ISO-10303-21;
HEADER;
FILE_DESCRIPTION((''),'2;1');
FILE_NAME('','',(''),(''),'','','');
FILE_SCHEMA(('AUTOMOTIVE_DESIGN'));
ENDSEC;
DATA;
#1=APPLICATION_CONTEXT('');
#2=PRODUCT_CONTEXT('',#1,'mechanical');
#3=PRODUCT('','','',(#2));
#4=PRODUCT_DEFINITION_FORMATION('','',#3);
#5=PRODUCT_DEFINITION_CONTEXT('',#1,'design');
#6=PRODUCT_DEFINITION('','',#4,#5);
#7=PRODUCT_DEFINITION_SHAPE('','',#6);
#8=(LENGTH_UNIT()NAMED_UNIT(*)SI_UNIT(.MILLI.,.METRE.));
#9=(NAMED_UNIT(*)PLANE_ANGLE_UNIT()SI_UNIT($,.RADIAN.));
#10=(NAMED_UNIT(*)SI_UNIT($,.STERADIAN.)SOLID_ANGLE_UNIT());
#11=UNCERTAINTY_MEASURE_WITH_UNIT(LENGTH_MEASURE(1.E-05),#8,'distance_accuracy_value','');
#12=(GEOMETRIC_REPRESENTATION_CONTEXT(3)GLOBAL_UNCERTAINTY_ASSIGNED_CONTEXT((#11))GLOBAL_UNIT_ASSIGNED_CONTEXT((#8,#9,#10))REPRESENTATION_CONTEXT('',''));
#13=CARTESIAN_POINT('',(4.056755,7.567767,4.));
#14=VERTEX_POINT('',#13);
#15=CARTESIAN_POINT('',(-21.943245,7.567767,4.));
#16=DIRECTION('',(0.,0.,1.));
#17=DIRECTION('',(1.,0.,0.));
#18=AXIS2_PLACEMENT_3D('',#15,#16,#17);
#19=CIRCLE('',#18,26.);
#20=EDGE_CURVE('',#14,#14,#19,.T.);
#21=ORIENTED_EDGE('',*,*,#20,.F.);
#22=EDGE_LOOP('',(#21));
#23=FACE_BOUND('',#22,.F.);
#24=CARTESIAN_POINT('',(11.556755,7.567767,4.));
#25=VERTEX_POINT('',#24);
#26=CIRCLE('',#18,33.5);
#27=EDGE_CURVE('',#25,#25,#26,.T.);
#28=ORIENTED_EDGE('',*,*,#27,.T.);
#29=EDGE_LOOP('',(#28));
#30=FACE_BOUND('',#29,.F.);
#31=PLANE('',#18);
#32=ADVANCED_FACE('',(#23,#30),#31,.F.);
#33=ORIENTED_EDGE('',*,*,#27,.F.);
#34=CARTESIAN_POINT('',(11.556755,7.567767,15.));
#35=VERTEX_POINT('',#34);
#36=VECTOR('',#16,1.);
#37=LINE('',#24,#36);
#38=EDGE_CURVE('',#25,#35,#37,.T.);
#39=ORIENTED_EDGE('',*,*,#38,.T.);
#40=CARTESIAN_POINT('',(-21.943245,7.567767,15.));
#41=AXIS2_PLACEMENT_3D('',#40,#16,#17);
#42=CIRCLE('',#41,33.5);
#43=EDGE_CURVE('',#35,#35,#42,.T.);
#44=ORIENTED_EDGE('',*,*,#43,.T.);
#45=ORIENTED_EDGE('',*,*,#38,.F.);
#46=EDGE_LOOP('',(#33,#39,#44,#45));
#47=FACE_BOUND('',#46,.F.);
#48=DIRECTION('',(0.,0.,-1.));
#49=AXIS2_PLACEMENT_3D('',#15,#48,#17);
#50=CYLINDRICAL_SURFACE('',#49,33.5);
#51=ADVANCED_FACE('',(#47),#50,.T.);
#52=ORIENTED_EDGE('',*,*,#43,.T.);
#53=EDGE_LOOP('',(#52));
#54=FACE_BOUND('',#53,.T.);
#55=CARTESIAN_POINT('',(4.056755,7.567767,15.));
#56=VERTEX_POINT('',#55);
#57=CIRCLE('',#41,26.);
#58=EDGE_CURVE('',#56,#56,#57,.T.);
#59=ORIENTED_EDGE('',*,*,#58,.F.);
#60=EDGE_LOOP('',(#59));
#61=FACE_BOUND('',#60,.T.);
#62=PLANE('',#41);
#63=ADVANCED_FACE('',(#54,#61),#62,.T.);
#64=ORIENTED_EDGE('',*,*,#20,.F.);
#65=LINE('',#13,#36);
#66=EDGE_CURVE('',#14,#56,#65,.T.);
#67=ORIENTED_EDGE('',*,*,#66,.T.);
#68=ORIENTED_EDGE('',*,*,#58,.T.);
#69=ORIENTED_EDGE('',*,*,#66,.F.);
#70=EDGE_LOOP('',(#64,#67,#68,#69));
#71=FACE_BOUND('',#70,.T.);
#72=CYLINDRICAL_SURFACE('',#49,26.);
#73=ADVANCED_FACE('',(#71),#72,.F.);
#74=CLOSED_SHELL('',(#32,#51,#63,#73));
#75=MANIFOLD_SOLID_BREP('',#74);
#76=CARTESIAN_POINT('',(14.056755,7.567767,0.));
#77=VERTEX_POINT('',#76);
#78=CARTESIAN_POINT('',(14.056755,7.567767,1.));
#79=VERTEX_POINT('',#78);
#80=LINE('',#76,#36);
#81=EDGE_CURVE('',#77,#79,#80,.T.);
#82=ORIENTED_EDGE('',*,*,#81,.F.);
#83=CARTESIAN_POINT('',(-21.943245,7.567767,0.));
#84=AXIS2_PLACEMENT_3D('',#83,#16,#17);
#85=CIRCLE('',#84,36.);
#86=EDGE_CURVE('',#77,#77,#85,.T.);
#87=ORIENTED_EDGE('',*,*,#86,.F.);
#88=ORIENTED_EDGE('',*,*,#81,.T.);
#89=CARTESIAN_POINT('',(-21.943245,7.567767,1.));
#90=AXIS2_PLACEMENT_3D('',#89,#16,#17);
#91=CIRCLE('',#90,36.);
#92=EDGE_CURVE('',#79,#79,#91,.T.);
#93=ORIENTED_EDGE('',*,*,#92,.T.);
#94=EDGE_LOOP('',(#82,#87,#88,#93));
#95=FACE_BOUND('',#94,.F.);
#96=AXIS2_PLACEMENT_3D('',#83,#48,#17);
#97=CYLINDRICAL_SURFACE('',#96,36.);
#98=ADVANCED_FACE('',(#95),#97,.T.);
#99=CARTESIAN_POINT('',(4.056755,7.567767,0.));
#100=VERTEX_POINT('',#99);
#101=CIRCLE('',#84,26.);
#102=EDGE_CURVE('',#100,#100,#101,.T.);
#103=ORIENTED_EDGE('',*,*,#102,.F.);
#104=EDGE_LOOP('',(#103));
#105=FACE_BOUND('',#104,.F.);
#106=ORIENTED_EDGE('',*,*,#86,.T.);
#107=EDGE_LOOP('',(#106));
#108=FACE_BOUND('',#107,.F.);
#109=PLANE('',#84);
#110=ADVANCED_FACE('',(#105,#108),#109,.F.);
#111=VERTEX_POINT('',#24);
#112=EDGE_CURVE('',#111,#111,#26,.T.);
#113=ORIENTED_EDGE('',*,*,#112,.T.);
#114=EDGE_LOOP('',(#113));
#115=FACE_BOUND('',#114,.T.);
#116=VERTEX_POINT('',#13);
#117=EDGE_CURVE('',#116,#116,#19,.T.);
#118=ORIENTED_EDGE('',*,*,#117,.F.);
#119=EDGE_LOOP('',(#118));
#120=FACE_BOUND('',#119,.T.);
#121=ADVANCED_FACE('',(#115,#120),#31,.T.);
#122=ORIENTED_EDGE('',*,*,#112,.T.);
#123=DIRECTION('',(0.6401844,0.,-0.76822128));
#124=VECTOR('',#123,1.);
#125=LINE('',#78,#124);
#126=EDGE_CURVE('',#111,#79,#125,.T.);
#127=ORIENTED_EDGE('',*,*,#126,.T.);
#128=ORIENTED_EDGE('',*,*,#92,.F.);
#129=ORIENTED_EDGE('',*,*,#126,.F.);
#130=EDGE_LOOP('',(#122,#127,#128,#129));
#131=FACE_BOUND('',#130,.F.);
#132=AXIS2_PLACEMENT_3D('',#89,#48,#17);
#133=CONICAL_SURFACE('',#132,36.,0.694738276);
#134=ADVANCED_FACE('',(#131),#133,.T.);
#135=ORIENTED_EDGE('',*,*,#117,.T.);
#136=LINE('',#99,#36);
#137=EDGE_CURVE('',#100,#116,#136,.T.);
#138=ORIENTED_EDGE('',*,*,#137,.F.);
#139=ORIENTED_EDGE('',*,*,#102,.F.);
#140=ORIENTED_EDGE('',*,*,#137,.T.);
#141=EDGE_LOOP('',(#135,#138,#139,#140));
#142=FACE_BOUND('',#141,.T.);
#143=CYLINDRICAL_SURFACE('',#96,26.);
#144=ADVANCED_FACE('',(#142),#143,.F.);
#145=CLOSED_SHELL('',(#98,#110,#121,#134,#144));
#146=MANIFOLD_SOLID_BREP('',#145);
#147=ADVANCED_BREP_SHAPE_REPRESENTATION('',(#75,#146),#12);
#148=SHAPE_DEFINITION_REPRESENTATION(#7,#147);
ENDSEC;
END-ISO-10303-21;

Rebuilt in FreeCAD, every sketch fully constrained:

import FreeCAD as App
import Part
import Sketcher
Q = App.Units.Quantity


def edges_at(feature, points):
    """Names of the edges that pass closest to the given points."""
    edges = feature.Shape.Edges
    near = lambda p: min(range(len(edges)), key=lambda i: edges[i].distToShape(Part.Vertex(*p))[0])
    return sorted({f"Edge{near(p) + 1}" for p in points})

doc = App.newDocument("Part")
body = doc.addObject("PartDesign::Body", "Body")

# Sketch on XY plane
sketch1 = body.newObject("Sketcher::SketchObject", "Sketch")
sketch1.AttachmentSupport = (doc.getObject("XY_Plane"), [""])
sketch1.MapMode = "FlatFace"
sketch1.addGeometry(Part.Circle(App.Vector(-22, 8, 0), App.Vector(0, 0, 1), 36), False)
sketch1.addGeometry(Part.Circle(App.Vector(-22, 8, 0), App.Vector(0, 0, 1), 26), False)
sketch1.addConstraint(Sketcher.Constraint("Coincident", 1, 3, 0, 3))
sketch1.addConstraint(Sketcher.Constraint("Diameter", 0, Q("72 mm")))
sketch1.addConstraint(Sketcher.Constraint("Diameter", 1, Q("52 mm")))
sketch1.addConstraint(Sketcher.Constraint("DistanceX", 0, 3, -1, 1, Q("21.943245 mm")))
sketch1.addConstraint(Sketcher.Constraint("DistanceY", -1, 1, 0, 3, Q("7.567767 mm")))
pad1 = body.newObject("PartDesign::Pad", "Pad")
pad1.Profile = sketch1
pad1.Length = 4
doc.recompute()

chamfer = body.newObject("PartDesign::Chamfer", "Chamfer")
chamfer.Base = (pad1, edges_at(pad1, [(-57.943, 7.568, 4)]))
chamfer.ChamferType = "Two distances"
chamfer.Size = 2.5
chamfer.Size2 = 3
chamfer.FlipDirection = True
body2 = doc.addObject("PartDesign::Body", "Body001")

# Sketch on XY plane
sketch2 = body2.newObject("Sketcher::SketchObject", "Sketch001")
sketch2.AttachmentSupport = (doc.getObject("XY_Plane001"), [""])
sketch2.MapMode = "FlatFace"
sketch2.AttachmentOffset = App.Placement(App.Vector(0, 0, 4), App.Rotation())
sketch2.addGeometry(Part.Circle(App.Vector(-22, 8, 0), App.Vector(0, 0, 1), 34), False)
sketch2.addGeometry(Part.Circle(App.Vector(-22, 8, 0), App.Vector(0, 0, 1), 26), False)
sketch2.addConstraint(Sketcher.Constraint("Coincident", 1, 3, 0, 3))
sketch2.addConstraint(Sketcher.Constraint("Diameter", 0, Q("67 mm")))
sketch2.addConstraint(Sketcher.Constraint("Diameter", 1, Q("52 mm")))
sketch2.addConstraint(Sketcher.Constraint("DistanceX", 0, 3, -1, 1, Q("21.943245 mm")))
sketch2.addConstraint(Sketcher.Constraint("DistanceY", -1, 1, 0, 3, Q("7.567767 mm")))
pad2 = body2.newObject("PartDesign::Pad", "Pad001")
pad2.Profile = sketch2
pad2.Length = 11

doc.recompute()
